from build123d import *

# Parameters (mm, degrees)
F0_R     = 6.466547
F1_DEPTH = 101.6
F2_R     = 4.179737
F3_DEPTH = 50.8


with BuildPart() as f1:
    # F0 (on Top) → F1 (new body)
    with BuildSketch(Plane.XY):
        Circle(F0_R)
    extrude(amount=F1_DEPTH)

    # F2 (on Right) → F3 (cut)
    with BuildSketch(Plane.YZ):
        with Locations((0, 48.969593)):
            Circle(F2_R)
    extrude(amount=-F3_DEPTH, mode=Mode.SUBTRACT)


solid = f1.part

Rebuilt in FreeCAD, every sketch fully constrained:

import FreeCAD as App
import Part
import Sketcher
Q = App.Units.Quantity

doc = App.newDocument("Part")
body = doc.addObject("PartDesign::Body", "Body")

# Sketch on XY plane
sketch1 = body.newObject("Sketcher::SketchObject", "Sketch")
sketch1.AttachmentSupport = (doc.getObject("XY_Plane"), [""])
sketch1.MapMode = "FlatFace"
sketch1.addGeometry(Part.Circle(App.Vector(0, 0, 0), App.Vector(0, 0, 1), 6.466547), False)
sketch1.addConstraint([
    Sketcher.Constraint("Coincident", 0, 3, -1, 1),
    Sketcher.Constraint("Diameter", 0, 12.933094),
])
pad1 = body.newObject("PartDesign::Pad", "Pad")
pad1.Profile = sketch1
pad1.Length = Q("4 in")

# Sketch on YZ plane
sketch2 = body.newObject("Sketcher::SketchObject", "Sketch001")
sketch2.AttachmentSupport = (doc.getObject("YZ_Plane"), [""])
sketch2.MapMode = "FlatFace"
sketch2.addGeometry(Part.Circle(App.Vector(0, 48.969593, 0), App.Vector(0, 0, 1), 4.179737), False)
sketch2.addConstraint([
    Sketcher.Constraint("PointOnObject", 0, 3, -2),
    Sketcher.Constraint("Diameter", 0, 8.359474),
    Sketcher.Constraint("DistanceY", -1, 1, 0, 3, 48.969593),
])
pocket1 = body.newObject("PartDesign::Pocket", "Pocket")
pocket1.Profile = sketch2
pocket1.Length = Q("2 in")

doc.recompute()
